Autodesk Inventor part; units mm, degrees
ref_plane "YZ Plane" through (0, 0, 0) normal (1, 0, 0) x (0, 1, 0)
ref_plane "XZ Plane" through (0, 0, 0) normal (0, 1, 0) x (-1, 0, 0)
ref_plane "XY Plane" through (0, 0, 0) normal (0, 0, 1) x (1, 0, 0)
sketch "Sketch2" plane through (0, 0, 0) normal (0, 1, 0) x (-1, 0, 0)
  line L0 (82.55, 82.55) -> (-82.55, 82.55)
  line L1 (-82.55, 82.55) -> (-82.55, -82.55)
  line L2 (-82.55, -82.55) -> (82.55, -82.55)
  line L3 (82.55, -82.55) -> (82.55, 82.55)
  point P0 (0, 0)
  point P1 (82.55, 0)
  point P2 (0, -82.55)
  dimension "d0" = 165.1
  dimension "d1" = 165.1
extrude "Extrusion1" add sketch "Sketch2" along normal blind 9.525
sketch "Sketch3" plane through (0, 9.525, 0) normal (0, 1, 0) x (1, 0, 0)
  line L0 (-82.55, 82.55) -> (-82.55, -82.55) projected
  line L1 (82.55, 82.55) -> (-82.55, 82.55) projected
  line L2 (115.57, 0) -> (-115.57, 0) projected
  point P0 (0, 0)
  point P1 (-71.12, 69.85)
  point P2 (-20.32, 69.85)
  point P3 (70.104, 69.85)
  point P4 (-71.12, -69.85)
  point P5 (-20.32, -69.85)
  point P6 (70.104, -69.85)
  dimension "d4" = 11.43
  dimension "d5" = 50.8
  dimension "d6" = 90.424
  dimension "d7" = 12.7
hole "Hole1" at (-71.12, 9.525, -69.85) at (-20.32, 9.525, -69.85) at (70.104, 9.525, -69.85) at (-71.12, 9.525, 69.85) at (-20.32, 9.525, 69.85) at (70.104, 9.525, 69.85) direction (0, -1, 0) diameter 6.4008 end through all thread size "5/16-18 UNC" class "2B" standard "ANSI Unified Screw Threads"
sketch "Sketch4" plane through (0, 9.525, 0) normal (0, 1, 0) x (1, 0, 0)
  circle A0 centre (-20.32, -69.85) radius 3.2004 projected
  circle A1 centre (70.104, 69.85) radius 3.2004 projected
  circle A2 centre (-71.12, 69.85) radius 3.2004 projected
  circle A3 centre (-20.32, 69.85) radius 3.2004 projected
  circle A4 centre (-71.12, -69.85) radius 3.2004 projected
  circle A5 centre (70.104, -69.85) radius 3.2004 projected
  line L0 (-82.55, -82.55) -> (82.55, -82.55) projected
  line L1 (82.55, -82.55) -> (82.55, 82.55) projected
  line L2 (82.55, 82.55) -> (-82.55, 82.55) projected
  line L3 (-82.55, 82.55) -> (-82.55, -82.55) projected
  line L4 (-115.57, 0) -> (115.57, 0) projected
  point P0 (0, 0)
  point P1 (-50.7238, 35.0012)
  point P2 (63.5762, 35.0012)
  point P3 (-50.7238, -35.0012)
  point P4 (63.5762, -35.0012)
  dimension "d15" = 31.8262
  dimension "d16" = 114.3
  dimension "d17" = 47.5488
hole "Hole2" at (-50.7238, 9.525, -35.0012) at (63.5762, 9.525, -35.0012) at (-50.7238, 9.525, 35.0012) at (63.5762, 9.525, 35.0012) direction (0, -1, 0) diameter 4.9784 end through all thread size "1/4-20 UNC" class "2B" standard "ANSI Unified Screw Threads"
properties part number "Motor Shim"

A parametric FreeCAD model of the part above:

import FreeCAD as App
import Part
import Sketcher
Q = App.Units.Quantity

doc = App.newDocument("Part")
body = doc.addObject("PartDesign::Body", "Body")

# Sketch on XZ plane
sketch1 = body.newObject("Sketcher::SketchObject", "Sketch")
sketch1.AttachmentSupport = (doc.getObject("XZ_Plane"), [""])
sketch1.MapMode = "FlatFace"
sketch1.addGeometry([
    Part.LineSegment(App.Vector(-83, -83, 0), App.Vector(-83, 83, 0)),
    Part.LineSegment(App.Vector(-83, 83, 0), App.Vector(83, 83, 0)),
    Part.LineSegment(App.Vector(83, 83, 0), App.Vector(83, -83, 0)),
    Part.LineSegment(App.Vector(83, -83, 0), App.Vector(-83, -83, 0)),
], False)
sketch1.addConstraint([
    Sketcher.Constraint("Coincident", 0, 2, 1, 1),
    Sketcher.Constraint("Coincident", 1, 2, 2, 1),
    Sketcher.Constraint("Coincident", 2, 2, 3, 1),
    Sketcher.Constraint("Coincident", 3, 2, 0, 1),
    Sketcher.Constraint("Vertical", 0),
    Sketcher.Constraint("Horizontal", 1),
    Sketcher.Constraint("Vertical", 2),
    Sketcher.Constraint("Horizontal", 3),
    Sketcher.Constraint("Symmetric", 0, 2, 2, 2, -1, 1),
    Sketcher.Constraint("Equal", 3, 0),
    Sketcher.Constraint("DistanceX", 1, 1, 1, 2, Q("6.5 in")),
])
pad1 = body.newObject("PartDesign::Pad", "Pad")
pad1.Profile = sketch1
pad1.Length = Q("0.375 in")
pad1.Reversed = True

# Sketch on XZ plane
sketch2 = body.newObject("Sketcher::SketchObject", "Sketch001")
sketch2.AttachmentSupport = (doc.getObject("XZ_Plane"), [""])
sketch2.MapMode = "FlatFace"
sketch2.AttachmentOffset = App.Placement(App.Vector(0, 0, -0.375 * 25.4), App.Rotation())
sketch2.addGeometry([
    Part.Circle(App.Vector(-71.1, -69.8, 0), App.Vector(0, 0, 1), 3.2),  # 0
    Part.Circle(App.Vector(-20.3, -69.8, 0), App.Vector(0, 0, 1), 3.2),  # 1
    Part.Circle(App.Vector(70.1, -69.8, 0), App.Vector(0, 0, 1), 3.2),  # 2
    Part.Circle(App.Vector(-71.1, 69.8, 0), App.Vector(0, 0, 1), 3.2),  # 3
    Part.Circle(App.Vector(-20.3, 69.8, 0), App.Vector(0, 0, 1), 3.2),  # 4
    Part.Circle(App.Vector(70.1, 69.8, 0), App.Vector(0, 0, 1), 3.2),  # 5
], False)
sketch2.addConstraint([
    Sketcher.Constraint("Equal", 0, 1),
    Sketcher.Constraint("Equal", 1, 2),
    Sketcher.Constraint("Equal", 2, 3),
    Sketcher.Constraint("Equal", 3, 4),
    Sketcher.Constraint("Equal", 4, 5),
    Sketcher.Constraint("Symmetric", 0, 3, 3, 3, -1),
    Sketcher.Constraint("Symmetric", 1, 3, 4, 3, -1),
    Sketcher.Constraint("Symmetric", 2, 3, 5, 3, -1),
    Sketcher.Constraint("Horizontal", 0, 3, 1, 3),
    Sketcher.Constraint("Horizontal", 1, 3, 2, 3),
    Sketcher.Constraint("Diameter", 0, Q("0.252 in")),
    Sketcher.Constraint("DistanceX", 0, 3, 1, 3, Q("2 in")),
    Sketcher.Constraint("DistanceX", 0, 3, -1, 1, Q("2.8 in")),
    Sketcher.Constraint("DistanceY", 0, 3, 3, 3, Q("5.5 in")),
    Sketcher.Constraint("DistanceX", -1, 1, 2, 3, Q("2.76 in")),
])
doc.recompute()
hole = body.newObject("PartDesign::Hole", "Hole")
hole.Profile = sketch2
hole.ThreadType = "None"
hole.Diameter = Q("0.252 in")
hole.DepthType = "ThroughAll"
hole.Reversed = True

# Sketch on XZ plane
sketch3 = body.newObject("Sketcher::SketchObject", "Sketch002")
sketch3.AttachmentSupport = (doc.getObject("XZ_Plane"), [""])
sketch3.MapMode = "FlatFace"
sketch3.AttachmentOffset = App.Placement(App.Vector(0, 0, -0.375 * 25.4), App.Rotation())
sketch3.addGeometry([
    Part.Circle(App.Vector(-50.7, -35, 0), App.Vector(0, 0, 1), 2.5),
    Part.Circle(App.Vector(63.6, -35, 0), App.Vector(0, 0, 1), 2.5),
    Part.Circle(App.Vector(-50.7, 35, 0), App.Vector(0, 0, 1), 2.5),
    Part.Circle(App.Vector(63.6, 35, 0), App.Vector(0, 0, 1), 2.5),
], False)
sketch3.addConstraint([
    Sketcher.Constraint("Equal", 0, 1),
    Sketcher.Constraint("Equal", 1, 2),
    Sketcher.Constraint("Equal", 2, 3),
    Sketcher.Constraint("Symmetric", 0, 3, 2, 3, -1),
    Sketcher.Constraint("Symmetric", 1, 3, 3, 3, -1),
    Sketcher.Constraint("Horizontal", 0, 3, 1, 3),
    Sketcher.Constraint("Diameter", 0, Q("0.196 in")),
    Sketcher.Constraint("DistanceX", 0, 3, 1, 3, Q("4.5 in")),
    Sketcher.Constraint("DistanceX", 0, 3, -1, 1, Q("1.997 in")),
    Sketcher.Constraint("DistanceY", 0, 3, -1, 1, Q("1.378 in")),
])
doc.recompute()
hole2 = body.newObject("PartDesign::Hole", "Hole001")
hole2.Profile = sketch3
hole2.ThreadType = "None"
hole2.Diameter = Q("0.196 in")
hole2.DepthType = "ThroughAll"
hole2.Reversed = True

doc.recompute()
